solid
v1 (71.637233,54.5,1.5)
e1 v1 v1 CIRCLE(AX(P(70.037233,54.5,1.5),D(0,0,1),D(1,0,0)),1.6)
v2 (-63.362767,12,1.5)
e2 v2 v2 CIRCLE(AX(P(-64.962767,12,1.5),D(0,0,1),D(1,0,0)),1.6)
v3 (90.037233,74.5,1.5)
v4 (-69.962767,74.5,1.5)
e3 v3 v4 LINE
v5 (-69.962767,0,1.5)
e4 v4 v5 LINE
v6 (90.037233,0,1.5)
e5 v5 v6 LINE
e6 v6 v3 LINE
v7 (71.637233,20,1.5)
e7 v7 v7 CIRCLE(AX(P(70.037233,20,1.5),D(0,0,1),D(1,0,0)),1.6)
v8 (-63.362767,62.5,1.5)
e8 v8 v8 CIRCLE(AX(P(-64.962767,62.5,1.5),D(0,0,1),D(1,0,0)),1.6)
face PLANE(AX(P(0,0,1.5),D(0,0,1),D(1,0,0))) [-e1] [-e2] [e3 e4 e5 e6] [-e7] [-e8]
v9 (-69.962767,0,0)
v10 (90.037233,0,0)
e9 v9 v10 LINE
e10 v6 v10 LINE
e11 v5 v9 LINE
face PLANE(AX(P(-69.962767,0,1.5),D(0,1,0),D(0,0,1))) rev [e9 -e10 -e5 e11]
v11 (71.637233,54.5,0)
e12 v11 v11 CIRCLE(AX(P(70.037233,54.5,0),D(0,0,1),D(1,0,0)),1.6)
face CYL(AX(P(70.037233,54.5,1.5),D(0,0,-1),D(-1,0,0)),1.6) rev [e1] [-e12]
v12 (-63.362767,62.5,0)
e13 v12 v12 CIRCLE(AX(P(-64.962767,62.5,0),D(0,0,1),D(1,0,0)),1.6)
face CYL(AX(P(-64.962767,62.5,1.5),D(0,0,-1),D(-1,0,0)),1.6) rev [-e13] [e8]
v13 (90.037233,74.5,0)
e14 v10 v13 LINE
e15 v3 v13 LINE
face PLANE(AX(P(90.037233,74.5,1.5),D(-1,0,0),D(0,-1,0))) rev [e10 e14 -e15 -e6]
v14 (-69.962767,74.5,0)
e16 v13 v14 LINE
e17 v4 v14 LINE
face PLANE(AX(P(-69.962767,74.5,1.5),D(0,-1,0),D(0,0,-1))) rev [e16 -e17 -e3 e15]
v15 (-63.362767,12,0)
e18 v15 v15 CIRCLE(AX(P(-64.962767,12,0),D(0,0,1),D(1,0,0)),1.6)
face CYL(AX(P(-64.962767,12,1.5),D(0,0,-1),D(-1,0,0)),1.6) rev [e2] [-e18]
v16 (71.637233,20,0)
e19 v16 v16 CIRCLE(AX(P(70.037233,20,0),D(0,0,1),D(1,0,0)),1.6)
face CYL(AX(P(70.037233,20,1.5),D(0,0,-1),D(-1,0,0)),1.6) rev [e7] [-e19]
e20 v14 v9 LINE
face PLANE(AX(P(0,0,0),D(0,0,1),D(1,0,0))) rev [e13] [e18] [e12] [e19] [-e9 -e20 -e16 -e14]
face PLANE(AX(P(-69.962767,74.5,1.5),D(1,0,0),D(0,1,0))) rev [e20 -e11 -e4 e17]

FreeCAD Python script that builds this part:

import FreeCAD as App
import Part
import Sketcher

V = App.Vector

doc = App.newDocument("Part")
body = doc.addObject("PartDesign::Body", "Body")

# Sketch on XY plane
sketch1 = body.newObject("Sketcher::SketchObject", "Sketch")
sketch1.AttachmentSupport = (doc.getObject("XY_Plane"), [""])
sketch1.MapMode = "FlatFace"
sketch1.addGeometry(Part.LineSegment(V(-69.962767, 74.5, 0), V(-69.962767, 0, 0)), False)
sketch1.addGeometry(Part.LineSegment(V(-69.962767, 0, 0), V(90.037233, 0, 0)), False)
sketch1.addGeometry(Part.LineSegment(V(90.037233, 0, 0), V(90.037233, 74.5, 0)), False)
sketch1.addGeometry(Part.LineSegment(V(90.037233, 74.5, 0), V(-69.962767, 74.5, 0)), False)
sketch1.addGeometry(Part.Circle(V(-64.962767, 12, 0), V(0, 0, 1), 1.6), False)
sketch1.addGeometry(Part.Circle(V(70.037233, 20, 0), V(0, 0, 1), 1.6), False)
sketch1.addGeometry(Part.Circle(V(-64.962767, 62.5, 0), V(0, 0, 1), 1.6), False)
sketch1.addGeometry(Part.Circle(V(70.037233, 54.5, 0), V(0, 0, 1), 1.6), False)
sketch1.addConstraint(Sketcher.Constraint("Coincident", 0, 2, 1, 1))
sketch1.addConstraint(Sketcher.Constraint("Coincident", 1, 2, 2, 1))
sketch1.addConstraint(Sketcher.Constraint("Coincident", 2, 2, 3, 1))
sketch1.addConstraint(Sketcher.Constraint("Coincident", 3, 2, 0, 1))
sketch1.addConstraint(Sketcher.Constraint("Vertical", 0))
sketch1.addConstraint(Sketcher.Constraint("Horizontal", 1))
sketch1.addConstraint(Sketcher.Constraint("Vertical", 2))
sketch1.addConstraint(Sketcher.Constraint("Horizontal", 3))
sketch1.addConstraint(Sketcher.Constraint("Equal", 4, 5))
sketch1.addConstraint(Sketcher.Constraint("Equal", 5, 6))
sketch1.addConstraint(Sketcher.Constraint("Equal", 6, 7))
sketch1.addConstraint(Sketcher.Constraint("PointOnObject", 0, 2, -1))
sketch1.addConstraint(Sketcher.Constraint("Vertical", 4, 3, 6, 3))
sketch1.addConstraint(Sketcher.Constraint("Vertical", 5, 3, 7, 3))
sketch1.addConstraint(Sketcher.Constraint("Diameter", 4, 3.2))
sketch1.addConstraint(Sketcher.Constraint("DistanceX", 1, 1, 1, 2, 160.0))
sketch1.addConstraint(Sketcher.Constraint("DistanceY", 0, 2, 0, 1, 74.5))
sketch1.addConstraint(Sketcher.Constraint("DistanceY", -1, 1, 4, 3, 12.0))
sketch1.addConstraint(Sketcher.Constraint("DistanceY", -1, 1, 5, 3, 20.0))
sketch1.addConstraint(Sketcher.Constraint("DistanceX", 4, 3, 5, 3, 135.0))
sketch1.addConstraint(Sketcher.Constraint("DistanceY", 7, 3, 6, 3, 8.0))
sketch1.addConstraint(Sketcher.Constraint("DistanceX", 0, 2, 4, 3, 5.0))
sketch1.addConstraint(Sketcher.Constraint("DistanceY", 7, 3, 2, 2, 20.0))
sketch1.addConstraint(Sketcher.Constraint("DistanceX", 4, 3, -1, 1, 64.962767))
pad1 = body.newObject("PartDesign::Pad", "Pad")
pad1.Profile = sketch1
pad1.Length = 1.5

doc.recompute()
